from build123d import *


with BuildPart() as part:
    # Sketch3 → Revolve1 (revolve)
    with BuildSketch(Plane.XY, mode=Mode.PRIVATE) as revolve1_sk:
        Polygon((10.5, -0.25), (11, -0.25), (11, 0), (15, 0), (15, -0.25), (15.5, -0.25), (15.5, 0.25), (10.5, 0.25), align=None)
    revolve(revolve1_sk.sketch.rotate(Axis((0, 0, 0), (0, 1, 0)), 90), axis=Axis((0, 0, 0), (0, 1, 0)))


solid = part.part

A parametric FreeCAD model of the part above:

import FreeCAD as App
import Part
import Sketcher

V = App.Vector
Q = App.Units.Quantity

doc = App.newDocument("Part")
body = doc.addObject("PartDesign::Body", "Body")

# Sketch on XY plane
sketch1 = body.newObject("Sketcher::SketchObject", "Sketch")
sketch1.AttachmentSupport = (doc.getObject("XY_Plane"), [""])
sketch1.MapMode = "FlatFace"
sketch1.addGeometry(Part.LineSegment(V(10.5, -0.25, 0), V(11, -0.25, 0)), False)
sketch1.addGeometry(Part.LineSegment(V(11, -0.25, 0), V(11, 0, 0)), False)
sketch1.addGeometry(Part.LineSegment(V(11, 0, 0), V(15, 0, 0)), False)
sketch1.addGeometry(Part.LineSegment(V(15, 0, 0), V(15, -0.25, 0)), False)
sketch1.addGeometry(Part.LineSegment(V(15, -0.25, 0), V(15.5, -0.25, 0)), False)
sketch1.addGeometry(Part.LineSegment(V(15.5, -0.25, 0), V(15.5, 0.25, 0)), False)
sketch1.addGeometry(Part.LineSegment(V(15.5, 0.25, 0), V(10.5, 0.25, 0)), False)
sketch1.addGeometry(Part.LineSegment(V(10.5, 0.25, 0), V(10.5, -0.25, 0)), False)
sketch1.addConstraint(Sketcher.Constraint("Coincident", 0, 2, 1, 1))
sketch1.addConstraint(Sketcher.Constraint("Coincident", 1, 2, 2, 1))
sketch1.addConstraint(Sketcher.Constraint("Coincident", 2, 2, 3, 1))
sketch1.addConstraint(Sketcher.Constraint("Coincident", 3, 2, 4, 1))
sketch1.addConstraint(Sketcher.Constraint("Coincident", 4, 2, 5, 1))
sketch1.addConstraint(Sketcher.Constraint("Coincident", 5, 2, 6, 1))
sketch1.addConstraint(Sketcher.Constraint("Coincident", 6, 2, 7, 1))
sketch1.addConstraint(Sketcher.Constraint("Coincident", 7, 2, 0, 1))
sketch1.addConstraint(Sketcher.Constraint("Horizontal", 0))
sketch1.addConstraint(Sketcher.Constraint("Vertical", 1))
sketch1.addConstraint(Sketcher.Constraint("Horizontal", 2))
sketch1.addConstraint(Sketcher.Constraint("Vertical", 3))
sketch1.addConstraint(Sketcher.Constraint("Horizontal", 4))
sketch1.addConstraint(Sketcher.Constraint("Vertical", 5))
sketch1.addConstraint(Sketcher.Constraint("Horizontal", 6))
sketch1.addConstraint(Sketcher.Constraint("Vertical", 7))
sketch1.addConstraint(Sketcher.Constraint("PointOnObject", 1, 2, -1))
sketch1.addConstraint(Sketcher.Constraint("Horizontal", 0, 2, 3, 2))
sketch1.addConstraint(Sketcher.Constraint("Equal", 0, 4))
sketch1.addConstraint(Sketcher.Constraint("Equal", 4, 5))
sketch1.addConstraint(Sketcher.Constraint("DistanceX", 2, 1, 2, 2, Q("4 mm")))
sketch1.addConstraint(Sketcher.Constraint("DistanceX", 6, 2, 6, 1, Q("5 mm")))
sketch1.addConstraint(Sketcher.Constraint("DistanceX", -1, 1, 0, 2, Q("11 mm")))
sketch1.addConstraint(Sketcher.Constraint("DistanceY", 1, 1, 1, 2, Q("0.25 mm")))
revolution = body.newObject("PartDesign::Revolution", "Revolution")
revolution.Profile = sketch1
revolution.ReferenceAxis = (sketch1, ["V_Axis"])
revolution.Angle = 360

doc.recompute()
